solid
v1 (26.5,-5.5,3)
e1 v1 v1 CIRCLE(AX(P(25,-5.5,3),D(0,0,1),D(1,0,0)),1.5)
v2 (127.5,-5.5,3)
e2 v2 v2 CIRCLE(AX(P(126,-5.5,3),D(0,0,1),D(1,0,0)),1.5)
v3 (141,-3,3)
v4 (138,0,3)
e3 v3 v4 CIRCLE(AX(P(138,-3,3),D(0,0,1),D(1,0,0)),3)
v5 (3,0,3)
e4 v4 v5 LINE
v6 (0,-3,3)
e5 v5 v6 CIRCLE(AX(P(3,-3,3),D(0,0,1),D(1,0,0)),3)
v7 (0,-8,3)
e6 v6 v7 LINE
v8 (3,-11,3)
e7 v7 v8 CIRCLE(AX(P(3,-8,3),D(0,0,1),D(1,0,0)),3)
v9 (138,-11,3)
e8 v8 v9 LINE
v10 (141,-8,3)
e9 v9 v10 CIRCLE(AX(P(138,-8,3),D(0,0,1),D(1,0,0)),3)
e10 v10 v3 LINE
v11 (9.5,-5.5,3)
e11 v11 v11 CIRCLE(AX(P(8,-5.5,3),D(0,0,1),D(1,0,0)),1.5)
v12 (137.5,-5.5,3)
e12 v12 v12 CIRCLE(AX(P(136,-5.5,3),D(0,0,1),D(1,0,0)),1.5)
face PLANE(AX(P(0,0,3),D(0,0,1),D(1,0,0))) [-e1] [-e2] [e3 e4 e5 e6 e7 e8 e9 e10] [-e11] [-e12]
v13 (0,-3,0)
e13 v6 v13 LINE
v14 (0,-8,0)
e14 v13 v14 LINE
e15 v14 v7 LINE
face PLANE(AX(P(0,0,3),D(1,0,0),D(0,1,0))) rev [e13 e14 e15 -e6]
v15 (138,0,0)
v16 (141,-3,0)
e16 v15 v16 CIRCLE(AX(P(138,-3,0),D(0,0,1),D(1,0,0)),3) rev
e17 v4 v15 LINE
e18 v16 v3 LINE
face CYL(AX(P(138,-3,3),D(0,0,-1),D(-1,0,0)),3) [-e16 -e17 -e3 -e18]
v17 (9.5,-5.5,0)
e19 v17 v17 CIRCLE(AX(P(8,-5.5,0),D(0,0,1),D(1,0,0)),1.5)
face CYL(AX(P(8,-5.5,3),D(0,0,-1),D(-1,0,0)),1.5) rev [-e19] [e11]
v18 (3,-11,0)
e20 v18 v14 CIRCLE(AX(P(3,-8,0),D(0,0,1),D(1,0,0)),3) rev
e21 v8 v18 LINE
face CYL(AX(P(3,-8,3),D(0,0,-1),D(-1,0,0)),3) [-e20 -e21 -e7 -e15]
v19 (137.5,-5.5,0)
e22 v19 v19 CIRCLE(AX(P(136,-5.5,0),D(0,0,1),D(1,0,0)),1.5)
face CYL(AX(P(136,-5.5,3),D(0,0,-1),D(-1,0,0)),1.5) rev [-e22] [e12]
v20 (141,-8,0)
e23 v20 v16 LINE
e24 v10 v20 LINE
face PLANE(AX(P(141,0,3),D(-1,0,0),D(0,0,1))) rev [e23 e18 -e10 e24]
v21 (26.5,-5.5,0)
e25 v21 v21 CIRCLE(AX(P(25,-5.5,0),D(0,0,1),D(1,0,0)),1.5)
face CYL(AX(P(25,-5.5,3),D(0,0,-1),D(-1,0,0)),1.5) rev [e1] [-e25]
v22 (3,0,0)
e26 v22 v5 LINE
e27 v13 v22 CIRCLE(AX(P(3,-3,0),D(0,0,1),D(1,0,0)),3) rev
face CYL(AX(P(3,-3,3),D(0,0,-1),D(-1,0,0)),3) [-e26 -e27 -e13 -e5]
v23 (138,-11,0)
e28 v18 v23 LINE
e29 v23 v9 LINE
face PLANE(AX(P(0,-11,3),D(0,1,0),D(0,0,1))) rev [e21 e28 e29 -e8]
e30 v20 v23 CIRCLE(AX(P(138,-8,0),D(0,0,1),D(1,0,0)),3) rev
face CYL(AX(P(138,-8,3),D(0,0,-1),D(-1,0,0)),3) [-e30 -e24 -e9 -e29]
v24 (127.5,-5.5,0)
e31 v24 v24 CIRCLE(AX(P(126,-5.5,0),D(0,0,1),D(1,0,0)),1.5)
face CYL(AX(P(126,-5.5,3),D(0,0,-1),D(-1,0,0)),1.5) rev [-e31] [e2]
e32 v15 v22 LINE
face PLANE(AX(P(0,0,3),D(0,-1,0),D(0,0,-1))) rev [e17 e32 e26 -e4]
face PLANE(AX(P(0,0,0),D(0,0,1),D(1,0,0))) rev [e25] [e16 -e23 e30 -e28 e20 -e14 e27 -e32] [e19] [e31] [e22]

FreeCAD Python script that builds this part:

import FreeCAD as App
import Part
import Sketcher

V = App.Vector


def edges_at(feature, points):
    """Names of the edges that pass closest to the given points."""
    edges = feature.Shape.Edges
    near = lambda p: min(range(len(edges)), key=lambda i: edges[i].distToShape(Part.Vertex(*p))[0])
    return sorted({f"Edge{near(p) + 1}" for p in points})

doc = App.newDocument("Part")
body = doc.addObject("PartDesign::Body", "Body")

# Sketch on XY plane
sketch1 = body.newObject("Sketcher::SketchObject", "Sketch")
sketch1.AttachmentSupport = (doc.getObject("XY_Plane"), [""])
sketch1.MapMode = "FlatFace"
sketch1.addGeometry([
    Part.LineSegment(V(0, 0, 0), V(0, -11, 0)),  # 0
    Part.LineSegment(V(0, -11, 0), V(141, -11, 0)),  # 1
    Part.LineSegment(V(141, -11, 0), V(141, 0, 0)),  # 2
    Part.LineSegment(V(141, 0, 0), V(0, 0, 0)),  # 3
    Part.Circle(V(8, -5.5, 0), V(0, 0, 1), 1.5),  # 4
    Part.Circle(V(25, -5.5, 0), V(0, 0, 1), 1.5),  # 5
    Part.Circle(V(126, -5.5, 0), V(0, 0, 1), 1.5),  # 6
    Part.Circle(V(136, -5.5, 0), V(0, 0, 1), 1.5),  # 7
], False)
sketch1.addConstraint([
    Sketcher.Constraint("Coincident", 0, 2, 1, 1),
    Sketcher.Constraint("Coincident", 1, 2, 2, 1),
    Sketcher.Constraint("Coincident", 2, 2, 3, 1),
    Sketcher.Constraint("Coincident", 3, 2, 0, 1),
    Sketcher.Constraint("Vertical", 0),
    Sketcher.Constraint("Horizontal", 1),
    Sketcher.Constraint("Vertical", 2),
    Sketcher.Constraint("Horizontal", 3),
    Sketcher.Constraint("Coincident", 3, 2, -1, 1),
    Sketcher.Constraint("Equal", 4, 5),
    Sketcher.Constraint("Equal", 5, 6),
    Sketcher.Constraint("Equal", 6, 7),
    Sketcher.Constraint("Horizontal", 4, 3, 5, 3),
    Sketcher.Constraint("Horizontal", 5, 3, 6, 3),
    Sketcher.Constraint("Horizontal", 6, 3, 7, 3),
    Sketcher.Constraint("Diameter", 4, 3.0),
    Sketcher.Constraint("DistanceX", 1, 1, 1, 2, 141.0),
    Sketcher.Constraint("DistanceY", 0, 2, 0, 1, 11.0),
    Sketcher.Constraint("DistanceX", -1, 1, 4, 3, 8.0),
    Sketcher.Constraint("DistanceX", -1, 1, 5, 3, 25.0),
    Sketcher.Constraint("DistanceX", -1, 1, 6, 3, 126.0),
    Sketcher.Constraint("DistanceX", -1, 1, 7, 3, 136.0),
    Sketcher.Constraint("DistanceY", 4, 3, -1, 1, 5.5),
])
pad1 = body.newObject("PartDesign::Pad", "Pad")
pad1.Profile = sketch1
pad1.Length = 3
doc.recompute()

fillet = body.newObject("PartDesign::Fillet", "Fillet")
fillet.Base = (pad1, edges_at(pad1, [
    (0, 0, 1.5),
    (141, 0, 1.5),
    (141, -11, 1.5),
    (0, -11, 1.5),
]))
fillet.Radius = 3

doc.recompute()
